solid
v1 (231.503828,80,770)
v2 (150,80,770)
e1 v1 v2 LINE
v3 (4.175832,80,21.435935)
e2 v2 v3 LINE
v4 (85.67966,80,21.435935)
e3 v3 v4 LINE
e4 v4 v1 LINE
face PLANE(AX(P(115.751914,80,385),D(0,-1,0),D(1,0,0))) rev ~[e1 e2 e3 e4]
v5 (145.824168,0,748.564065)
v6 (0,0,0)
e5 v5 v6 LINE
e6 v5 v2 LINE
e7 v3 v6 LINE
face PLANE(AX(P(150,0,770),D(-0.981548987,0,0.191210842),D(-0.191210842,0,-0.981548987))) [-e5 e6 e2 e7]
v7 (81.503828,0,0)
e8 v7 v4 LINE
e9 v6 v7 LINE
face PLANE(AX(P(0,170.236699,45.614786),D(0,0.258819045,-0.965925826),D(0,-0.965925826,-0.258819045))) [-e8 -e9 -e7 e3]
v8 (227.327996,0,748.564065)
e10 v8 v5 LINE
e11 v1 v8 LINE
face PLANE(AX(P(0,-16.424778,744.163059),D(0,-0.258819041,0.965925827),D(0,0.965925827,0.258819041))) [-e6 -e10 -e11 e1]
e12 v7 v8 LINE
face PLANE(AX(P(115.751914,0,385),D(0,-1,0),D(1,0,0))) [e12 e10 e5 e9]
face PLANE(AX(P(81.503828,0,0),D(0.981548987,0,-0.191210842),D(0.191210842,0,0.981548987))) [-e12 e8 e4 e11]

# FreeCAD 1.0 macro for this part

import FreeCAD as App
import Part
import Sketcher
from FreeCAD import Vector
Q = App.Units.Quantity

doc = App.newDocument("Part")
body = doc.addObject("PartDesign::Body", "Body")

sketch1 = body.newObject("Sketcher::SketchObject", "Sketch")
sketch1.AttachmentSupport = (doc.getObject("XZ_Plane"), [""])
sketch1.MapMode = "FlatFace"
sketch1.addGeometry([
    Part.LineSegment(Vector(150, 770, 0), Vector(0, 0, 0)),
    Part.LineSegment(Vector(0, 0, 0), Vector(82, 0, 0)),
    Part.LineSegment(Vector(82, 0, 0), Vector(232, 770, 0)),
    Part.LineSegment(Vector(232, 770, 0), Vector(150, 770, 0)),
], False)
sketch1.addConstraint([
    Sketcher.Constraint("Coincident", 0, 2, 1, 1),
    Sketcher.Constraint("Coincident", 1, 2, 2, 1),
    Sketcher.Constraint("Coincident", 2, 2, 3, 1),
    Sketcher.Constraint("Coincident", 3, 2, 0, 1),
    Sketcher.Constraint("Horizontal", 1),
    Sketcher.Constraint("Horizontal", 3),
    Sketcher.Constraint("Coincident", 0, 2, -1, 1),
    Sketcher.Constraint("Parallel", 0, 2),
    Sketcher.Constraint("DistanceY", -1, 1, 2, 2, 770.0),
    Sketcher.Constraint("DistanceX", -1, 1, 3, 2, 150.0),
    Sketcher.Constraint("DistanceX", 1, 1, 1, 2, 81.503828),
])
pad1 = body.newObject("PartDesign::Pad", "Pad")
pad1.Profile = sketch1
pad1.Length = 80
pad1.Reversed = True

sketch2 = body.newObject("Sketcher::SketchObject", "Sketch001")
sketch2.AttachmentSupport = (doc.getObject("YZ_Plane"), [""])
sketch2.MapMode = "FlatFace"
sketch2.addGeometry([
    Part.LineSegment(Vector(170, 46, 0), Vector(0, 0, 0)),
    Part.LineSegment(Vector(0, 0, 0), Vector(170, 0, 0)),
    Part.LineSegment(Vector(170, 0, 0), Vector(170, 46, 0)),
    Part.LineSegment(Vector(-16, 744, 0), Vector(80, 770, 0)),
    Part.LineSegment(Vector(80, 770, 0), Vector(-16, 770, 0)),
    Part.LineSegment(Vector(-16, 770, 0), Vector(-16, 744, 0)),
], False)
sketch2.addConstraint([
    Sketcher.Constraint("Coincident", 0, 2, 1, 1),
    Sketcher.Constraint("Coincident", 1, 2, 2, 1),
    Sketcher.Constraint("Coincident", 2, 2, 0, 1),
    Sketcher.Constraint("Coincident", 3, 2, 4, 1),
    Sketcher.Constraint("Coincident", 4, 2, 5, 1),
    Sketcher.Constraint("Coincident", 5, 2, 3, 1),
    Sketcher.Constraint("Horizontal", 1),
    Sketcher.Constraint("Vertical", 2),
    Sketcher.Constraint("Horizontal", 4),
    Sketcher.Constraint("Vertical", 5),
    Sketcher.Constraint("Coincident", 0, 2, -1, 1),
    Sketcher.Constraint("Parallel", 0, 3),
    Sketcher.Constraint("Angle", 0, Q("-165 deg")),
    Sketcher.Constraint("DistanceX", -1, 1, 3, 2, 80.0),
    Sketcher.Constraint("DistanceY", -1, 1, 3, 2, 770.0),
    Sketcher.Constraint("Distance", 0, 176.242),
    Sketcher.Constraint("DistanceX", 4, 2, 4, 1, 96.424778),
])
pocket1 = body.newObject("PartDesign::Pocket", "Pocket")
pocket1.Profile = sketch2
pocket1.Length = 300
pocket1.Reversed = True

doc.recompute()
